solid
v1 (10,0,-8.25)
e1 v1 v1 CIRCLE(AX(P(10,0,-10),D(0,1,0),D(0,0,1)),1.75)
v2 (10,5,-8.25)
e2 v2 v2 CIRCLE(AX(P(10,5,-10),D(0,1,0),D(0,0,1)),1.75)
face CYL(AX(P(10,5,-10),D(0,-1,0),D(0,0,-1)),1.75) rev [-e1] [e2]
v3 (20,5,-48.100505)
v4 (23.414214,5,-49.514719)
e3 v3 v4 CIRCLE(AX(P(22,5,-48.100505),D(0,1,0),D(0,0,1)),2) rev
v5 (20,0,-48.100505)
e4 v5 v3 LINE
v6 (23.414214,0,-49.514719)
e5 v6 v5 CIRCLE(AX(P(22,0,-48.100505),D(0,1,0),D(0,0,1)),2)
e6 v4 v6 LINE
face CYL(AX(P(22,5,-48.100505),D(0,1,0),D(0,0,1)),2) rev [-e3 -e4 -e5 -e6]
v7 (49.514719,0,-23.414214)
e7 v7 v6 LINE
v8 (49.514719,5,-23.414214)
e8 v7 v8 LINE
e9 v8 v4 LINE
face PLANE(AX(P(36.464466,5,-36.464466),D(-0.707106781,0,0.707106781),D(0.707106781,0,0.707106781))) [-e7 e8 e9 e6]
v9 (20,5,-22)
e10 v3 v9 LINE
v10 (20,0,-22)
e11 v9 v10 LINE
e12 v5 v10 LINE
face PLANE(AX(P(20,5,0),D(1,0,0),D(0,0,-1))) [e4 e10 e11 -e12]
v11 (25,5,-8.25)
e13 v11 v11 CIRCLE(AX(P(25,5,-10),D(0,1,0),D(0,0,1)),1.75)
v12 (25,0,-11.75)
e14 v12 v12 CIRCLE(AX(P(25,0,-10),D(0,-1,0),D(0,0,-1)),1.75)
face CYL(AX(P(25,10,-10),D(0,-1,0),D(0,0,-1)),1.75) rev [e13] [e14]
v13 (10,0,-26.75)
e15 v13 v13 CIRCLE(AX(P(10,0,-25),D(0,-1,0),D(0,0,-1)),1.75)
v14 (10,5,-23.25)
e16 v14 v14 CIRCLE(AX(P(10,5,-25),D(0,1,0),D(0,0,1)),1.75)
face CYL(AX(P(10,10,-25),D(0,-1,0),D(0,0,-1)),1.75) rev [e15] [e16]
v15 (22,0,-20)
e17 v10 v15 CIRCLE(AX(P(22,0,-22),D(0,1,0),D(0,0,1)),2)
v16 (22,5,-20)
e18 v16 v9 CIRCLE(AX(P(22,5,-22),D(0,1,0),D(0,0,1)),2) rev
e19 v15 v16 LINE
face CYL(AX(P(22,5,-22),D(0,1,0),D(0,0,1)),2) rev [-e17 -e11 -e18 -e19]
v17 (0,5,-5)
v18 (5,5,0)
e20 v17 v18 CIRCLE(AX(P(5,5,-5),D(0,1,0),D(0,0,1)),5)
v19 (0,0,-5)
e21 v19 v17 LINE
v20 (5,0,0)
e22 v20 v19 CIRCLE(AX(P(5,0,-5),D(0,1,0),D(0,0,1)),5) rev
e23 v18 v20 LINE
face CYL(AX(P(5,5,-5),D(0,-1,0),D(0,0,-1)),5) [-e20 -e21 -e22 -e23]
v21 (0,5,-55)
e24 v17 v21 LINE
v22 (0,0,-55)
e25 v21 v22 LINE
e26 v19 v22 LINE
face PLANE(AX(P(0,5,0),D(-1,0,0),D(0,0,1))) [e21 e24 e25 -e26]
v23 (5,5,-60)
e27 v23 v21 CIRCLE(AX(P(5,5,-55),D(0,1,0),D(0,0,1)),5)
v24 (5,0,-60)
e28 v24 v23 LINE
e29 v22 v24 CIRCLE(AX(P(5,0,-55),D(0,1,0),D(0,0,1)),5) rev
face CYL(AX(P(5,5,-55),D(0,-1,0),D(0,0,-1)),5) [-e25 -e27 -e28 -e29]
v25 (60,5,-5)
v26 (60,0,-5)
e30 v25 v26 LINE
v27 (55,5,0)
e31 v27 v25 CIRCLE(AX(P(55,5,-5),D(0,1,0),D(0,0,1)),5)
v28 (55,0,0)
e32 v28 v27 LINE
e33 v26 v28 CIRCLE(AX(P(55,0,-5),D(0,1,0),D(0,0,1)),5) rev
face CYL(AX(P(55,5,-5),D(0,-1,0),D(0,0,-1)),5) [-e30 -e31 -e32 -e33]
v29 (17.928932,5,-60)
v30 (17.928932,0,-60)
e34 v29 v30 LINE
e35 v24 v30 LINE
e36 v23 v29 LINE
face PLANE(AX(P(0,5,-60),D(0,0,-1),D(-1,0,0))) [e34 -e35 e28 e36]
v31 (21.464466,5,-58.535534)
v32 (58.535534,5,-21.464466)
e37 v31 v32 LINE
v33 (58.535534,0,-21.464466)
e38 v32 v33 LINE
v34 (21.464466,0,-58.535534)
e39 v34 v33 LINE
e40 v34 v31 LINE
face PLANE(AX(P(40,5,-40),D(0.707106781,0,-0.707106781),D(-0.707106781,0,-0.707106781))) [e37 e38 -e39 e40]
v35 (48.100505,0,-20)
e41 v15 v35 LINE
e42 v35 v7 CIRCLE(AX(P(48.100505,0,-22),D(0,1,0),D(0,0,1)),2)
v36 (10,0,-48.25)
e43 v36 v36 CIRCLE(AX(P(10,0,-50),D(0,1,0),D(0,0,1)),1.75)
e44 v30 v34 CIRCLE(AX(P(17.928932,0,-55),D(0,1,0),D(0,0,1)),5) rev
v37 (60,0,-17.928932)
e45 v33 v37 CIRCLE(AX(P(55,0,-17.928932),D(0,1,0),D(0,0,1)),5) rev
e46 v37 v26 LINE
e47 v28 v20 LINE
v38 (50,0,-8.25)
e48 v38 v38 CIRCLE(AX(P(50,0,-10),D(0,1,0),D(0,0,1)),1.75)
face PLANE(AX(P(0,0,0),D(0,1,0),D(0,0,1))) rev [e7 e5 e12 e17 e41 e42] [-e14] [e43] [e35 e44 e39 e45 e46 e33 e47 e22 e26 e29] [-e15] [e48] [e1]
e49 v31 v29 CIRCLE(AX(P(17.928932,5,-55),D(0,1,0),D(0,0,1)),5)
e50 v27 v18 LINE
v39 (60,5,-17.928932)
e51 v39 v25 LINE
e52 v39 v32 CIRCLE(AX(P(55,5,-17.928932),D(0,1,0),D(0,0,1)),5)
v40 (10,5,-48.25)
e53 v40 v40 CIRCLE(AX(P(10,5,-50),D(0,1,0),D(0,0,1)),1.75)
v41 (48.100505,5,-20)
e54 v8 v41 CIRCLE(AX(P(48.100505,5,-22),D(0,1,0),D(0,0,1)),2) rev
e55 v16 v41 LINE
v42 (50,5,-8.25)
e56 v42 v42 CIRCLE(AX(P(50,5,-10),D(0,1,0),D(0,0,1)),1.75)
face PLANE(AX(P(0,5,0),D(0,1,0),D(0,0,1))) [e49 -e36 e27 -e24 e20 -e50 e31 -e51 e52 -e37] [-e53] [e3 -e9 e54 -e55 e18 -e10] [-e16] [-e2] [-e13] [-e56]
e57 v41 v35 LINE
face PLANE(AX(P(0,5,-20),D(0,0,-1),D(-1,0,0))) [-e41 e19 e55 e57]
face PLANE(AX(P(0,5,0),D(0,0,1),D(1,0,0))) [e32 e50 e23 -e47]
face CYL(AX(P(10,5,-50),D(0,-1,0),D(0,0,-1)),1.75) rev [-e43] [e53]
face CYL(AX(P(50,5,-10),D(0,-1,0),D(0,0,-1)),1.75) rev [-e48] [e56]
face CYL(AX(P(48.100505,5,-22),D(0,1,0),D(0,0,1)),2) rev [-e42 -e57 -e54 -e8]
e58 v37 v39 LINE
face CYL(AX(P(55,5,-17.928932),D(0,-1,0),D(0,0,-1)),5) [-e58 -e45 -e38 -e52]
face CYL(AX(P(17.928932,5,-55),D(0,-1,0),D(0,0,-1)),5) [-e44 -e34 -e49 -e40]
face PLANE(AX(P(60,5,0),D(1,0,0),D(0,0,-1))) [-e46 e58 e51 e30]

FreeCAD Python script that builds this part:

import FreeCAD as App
import Part
import Sketcher

V = App.Vector
Q = App.Units.Quantity


def edges_at(feature, points):
    """Names of the edges that pass closest to the given points."""
    edges = feature.Shape.Edges
    near = lambda p: min(range(len(edges)), key=lambda i: edges[i].distToShape(Part.Vertex(*p))[0])
    return sorted({f"Edge{near(p) + 1}" for p in points})

doc = App.newDocument("Part")
params = doc.addObject("Spreadsheet::Sheet", "Params")
for row, (alias, value) in enumerate([
    ("sketch1_diameter", "3.5 mm"),
    ("sketch1_width", "20 mm"),
    ("sketch1_width2", "60 mm"),
    ("pad1_length", "5 mm"),
    ("fillet_radius", "2 mm"),
    ("sketch2_diameter", "3.5 mm"),
    ("pocket1_length", "10 mm"),
    ("fillet2_radius", "5 mm"),
], start=1):
    params.set(f"A{row}", alias)
    params.set(f"B{row}", "=" + value)
    params.setAlias(f"B{row}", alias)

body = doc.addObject("PartDesign::Body", "Body")

# Sketch on XZ plane
sketch1 = body.newObject("Sketcher::SketchObject", "Sketch")
sketch1.AttachmentSupport = (doc.getObject("XZ_Plane"), [""])
sketch1.MapMode = "FlatFace"
sketch1.addGeometry([
    Part.LineSegment(V(60, 0, 0), V(60, -20, 0)),  # 0
    Part.LineSegment(V(60, -20, 0), V(20, -60, 0)),  # 1
    Part.LineSegment(V(20, -60, 0), V(0, -60, 0)),  # 2
    Part.LineSegment(V(0, -60, 0), V(0, 0, 0)),  # 3
    Part.LineSegment(V(0, 0, 0), V(60, 0, 0)),  # 4
    Part.LineSegment(V(52.9, -20, 0), V(20, -20, 0)),  # 5
    Part.LineSegment(V(20, -20, 0), V(20, -52.9, 0)),  # 6
    Part.LineSegment(V(20, -52.9, 0), V(52.9, -20, 0)),  # 7
    Part.Circle(V(50, -10, 0), V(0, 0, 1), 1.8),  # 8
    Part.Circle(V(10, -10, 0), V(0, 0, 1), 1.8),  # 9
    Part.Circle(V(10, -50, 0), V(0, 0, 1), 1.8),  # 10
], False)
sketch1.addConstraint([
    Sketcher.Constraint("Coincident", 0, 2, 1, 1),
    Sketcher.Constraint("Coincident", 1, 2, 2, 1),
    Sketcher.Constraint("Coincident", 2, 2, 3, 1),
    Sketcher.Constraint("Coincident", 3, 2, 4, 1),
    Sketcher.Constraint("Coincident", 4, 2, 0, 1),
    Sketcher.Constraint("Coincident", 5, 2, 6, 1),
    Sketcher.Constraint("Coincident", 6, 2, 7, 1),
    Sketcher.Constraint("Coincident", 7, 2, 5, 1),
    Sketcher.Constraint("Vertical", 0),
    Sketcher.Constraint("Horizontal", 2),
    Sketcher.Constraint("Vertical", 3),
    Sketcher.Constraint("Horizontal", 4),
    Sketcher.Constraint("Horizontal", 5),
    Sketcher.Constraint("Vertical", 6),
    Sketcher.Constraint("Coincident", 3, 2, -1, 1),
    Sketcher.Constraint("Equal", 8, 9),
    Sketcher.Constraint("Equal", 9, 10),
    Sketcher.Constraint("Parallel", 1, 7),
    Sketcher.Constraint("Horizontal", 8, 3, 9, 3),
    Sketcher.Constraint("Horizontal", 0, 2, 5, 2),
    Sketcher.Constraint("Vertical", 9, 3, 10, 3),
    Sketcher.Constraint("Vertical", 1, 2, 5, 2),
    Sketcher.Constraint("Equal", 2, 0),
    Sketcher.Constraint("Equal", 4, 3),
    Sketcher.Constraint("Diameter", 8, Q("3.5 mm")),
    Sketcher.Constraint("DistanceX", 2, 2, 2, 1, Q("20 mm")),
    Sketcher.Constraint("DistanceX", 4, 1, 4, 2, Q("60 mm")),
    Sketcher.Constraint("DistanceX", -1, 1, 8, 3, Q("50 mm")),
    Sketcher.Constraint("DistanceY", 8, 3, -1, 1, Q("10 mm")),
    Sketcher.Constraint("DistanceX", -1, 1, 9, 3, Q("10 mm")),
    Sketcher.Constraint("DistanceY", 10, 3, -1, 1, Q("50 mm")),
    Sketcher.Constraint("DistanceX", 5, 2, 5, 1, Q("32.928932 mm")),
])
sketch1.setExpression("Constraints[24]", "Params.sketch1_diameter")
sketch1.setExpression("Constraints[25]", "Params.sketch1_width")
sketch1.setExpression("Constraints[26]", "Params.sketch1_width2")
pad1 = body.newObject("PartDesign::Pad", "Pad")
pad1.Profile = sketch1
pad1.setExpression("Length", "Params.pad1_length")
pad1.Reversed = True
doc.recompute()

fillet = body.newObject("PartDesign::Fillet", "Fillet")
fillet.Base = (pad1, edges_at(pad1, [(52.929, 2.5, -20), (20, 2.5, -52.929), (20, 2.5, -20)]))
fillet.setExpression("Radius", "Params.fillet_radius")

# Sketch on XZ plane
sketch2 = body.newObject("Sketcher::SketchObject", "Sketch001")
sketch2.AttachmentSupport = (doc.getObject("XZ_Plane"), [""])
sketch2.MapMode = "FlatFace"
sketch2.addGeometry([
    Part.Circle(V(10, -25, 0), V(0, 0, 1), 1.8),
    Part.Circle(V(25, -10, 0), V(0, 0, 1), 1.8),
], False)
sketch2.addConstraint([
    Sketcher.Constraint("Equal", 0, 1),
    Sketcher.Constraint("Diameter", 0, Q("3.5 mm")),
    Sketcher.Constraint("DistanceX", -1, 1, 0, 3, Q("10 mm")),
    Sketcher.Constraint("DistanceY", 0, 3, -1, 1, Q("25 mm")),
    Sketcher.Constraint("DistanceX", -1, 1, 1, 3, Q("25 mm")),
    Sketcher.Constraint("DistanceY", 1, 3, -1, 1, Q("10 mm")),
])
sketch2.setExpression("Constraints[1]", "Params.sketch2_diameter")
pocket1 = body.newObject("PartDesign::Pocket", "Pocket")
pocket1.Profile = sketch2
pocket1.setExpression("Length", "Params.pocket1_length")
doc.recompute()

fillet2 = body.newObject("PartDesign::Fillet", "Fillet001")
fillet2.Base = (pocket1, edges_at(pocket1, [
    (60, 2.5, 0),
    (0, 2.5, 0),
    (0, 2.5, -60),
    (20, 2.5, -60),
    (60, 2.5, -20),
]))
fillet2.setExpression("Radius", "Params.fillet2_radius")

doc.recompute()
